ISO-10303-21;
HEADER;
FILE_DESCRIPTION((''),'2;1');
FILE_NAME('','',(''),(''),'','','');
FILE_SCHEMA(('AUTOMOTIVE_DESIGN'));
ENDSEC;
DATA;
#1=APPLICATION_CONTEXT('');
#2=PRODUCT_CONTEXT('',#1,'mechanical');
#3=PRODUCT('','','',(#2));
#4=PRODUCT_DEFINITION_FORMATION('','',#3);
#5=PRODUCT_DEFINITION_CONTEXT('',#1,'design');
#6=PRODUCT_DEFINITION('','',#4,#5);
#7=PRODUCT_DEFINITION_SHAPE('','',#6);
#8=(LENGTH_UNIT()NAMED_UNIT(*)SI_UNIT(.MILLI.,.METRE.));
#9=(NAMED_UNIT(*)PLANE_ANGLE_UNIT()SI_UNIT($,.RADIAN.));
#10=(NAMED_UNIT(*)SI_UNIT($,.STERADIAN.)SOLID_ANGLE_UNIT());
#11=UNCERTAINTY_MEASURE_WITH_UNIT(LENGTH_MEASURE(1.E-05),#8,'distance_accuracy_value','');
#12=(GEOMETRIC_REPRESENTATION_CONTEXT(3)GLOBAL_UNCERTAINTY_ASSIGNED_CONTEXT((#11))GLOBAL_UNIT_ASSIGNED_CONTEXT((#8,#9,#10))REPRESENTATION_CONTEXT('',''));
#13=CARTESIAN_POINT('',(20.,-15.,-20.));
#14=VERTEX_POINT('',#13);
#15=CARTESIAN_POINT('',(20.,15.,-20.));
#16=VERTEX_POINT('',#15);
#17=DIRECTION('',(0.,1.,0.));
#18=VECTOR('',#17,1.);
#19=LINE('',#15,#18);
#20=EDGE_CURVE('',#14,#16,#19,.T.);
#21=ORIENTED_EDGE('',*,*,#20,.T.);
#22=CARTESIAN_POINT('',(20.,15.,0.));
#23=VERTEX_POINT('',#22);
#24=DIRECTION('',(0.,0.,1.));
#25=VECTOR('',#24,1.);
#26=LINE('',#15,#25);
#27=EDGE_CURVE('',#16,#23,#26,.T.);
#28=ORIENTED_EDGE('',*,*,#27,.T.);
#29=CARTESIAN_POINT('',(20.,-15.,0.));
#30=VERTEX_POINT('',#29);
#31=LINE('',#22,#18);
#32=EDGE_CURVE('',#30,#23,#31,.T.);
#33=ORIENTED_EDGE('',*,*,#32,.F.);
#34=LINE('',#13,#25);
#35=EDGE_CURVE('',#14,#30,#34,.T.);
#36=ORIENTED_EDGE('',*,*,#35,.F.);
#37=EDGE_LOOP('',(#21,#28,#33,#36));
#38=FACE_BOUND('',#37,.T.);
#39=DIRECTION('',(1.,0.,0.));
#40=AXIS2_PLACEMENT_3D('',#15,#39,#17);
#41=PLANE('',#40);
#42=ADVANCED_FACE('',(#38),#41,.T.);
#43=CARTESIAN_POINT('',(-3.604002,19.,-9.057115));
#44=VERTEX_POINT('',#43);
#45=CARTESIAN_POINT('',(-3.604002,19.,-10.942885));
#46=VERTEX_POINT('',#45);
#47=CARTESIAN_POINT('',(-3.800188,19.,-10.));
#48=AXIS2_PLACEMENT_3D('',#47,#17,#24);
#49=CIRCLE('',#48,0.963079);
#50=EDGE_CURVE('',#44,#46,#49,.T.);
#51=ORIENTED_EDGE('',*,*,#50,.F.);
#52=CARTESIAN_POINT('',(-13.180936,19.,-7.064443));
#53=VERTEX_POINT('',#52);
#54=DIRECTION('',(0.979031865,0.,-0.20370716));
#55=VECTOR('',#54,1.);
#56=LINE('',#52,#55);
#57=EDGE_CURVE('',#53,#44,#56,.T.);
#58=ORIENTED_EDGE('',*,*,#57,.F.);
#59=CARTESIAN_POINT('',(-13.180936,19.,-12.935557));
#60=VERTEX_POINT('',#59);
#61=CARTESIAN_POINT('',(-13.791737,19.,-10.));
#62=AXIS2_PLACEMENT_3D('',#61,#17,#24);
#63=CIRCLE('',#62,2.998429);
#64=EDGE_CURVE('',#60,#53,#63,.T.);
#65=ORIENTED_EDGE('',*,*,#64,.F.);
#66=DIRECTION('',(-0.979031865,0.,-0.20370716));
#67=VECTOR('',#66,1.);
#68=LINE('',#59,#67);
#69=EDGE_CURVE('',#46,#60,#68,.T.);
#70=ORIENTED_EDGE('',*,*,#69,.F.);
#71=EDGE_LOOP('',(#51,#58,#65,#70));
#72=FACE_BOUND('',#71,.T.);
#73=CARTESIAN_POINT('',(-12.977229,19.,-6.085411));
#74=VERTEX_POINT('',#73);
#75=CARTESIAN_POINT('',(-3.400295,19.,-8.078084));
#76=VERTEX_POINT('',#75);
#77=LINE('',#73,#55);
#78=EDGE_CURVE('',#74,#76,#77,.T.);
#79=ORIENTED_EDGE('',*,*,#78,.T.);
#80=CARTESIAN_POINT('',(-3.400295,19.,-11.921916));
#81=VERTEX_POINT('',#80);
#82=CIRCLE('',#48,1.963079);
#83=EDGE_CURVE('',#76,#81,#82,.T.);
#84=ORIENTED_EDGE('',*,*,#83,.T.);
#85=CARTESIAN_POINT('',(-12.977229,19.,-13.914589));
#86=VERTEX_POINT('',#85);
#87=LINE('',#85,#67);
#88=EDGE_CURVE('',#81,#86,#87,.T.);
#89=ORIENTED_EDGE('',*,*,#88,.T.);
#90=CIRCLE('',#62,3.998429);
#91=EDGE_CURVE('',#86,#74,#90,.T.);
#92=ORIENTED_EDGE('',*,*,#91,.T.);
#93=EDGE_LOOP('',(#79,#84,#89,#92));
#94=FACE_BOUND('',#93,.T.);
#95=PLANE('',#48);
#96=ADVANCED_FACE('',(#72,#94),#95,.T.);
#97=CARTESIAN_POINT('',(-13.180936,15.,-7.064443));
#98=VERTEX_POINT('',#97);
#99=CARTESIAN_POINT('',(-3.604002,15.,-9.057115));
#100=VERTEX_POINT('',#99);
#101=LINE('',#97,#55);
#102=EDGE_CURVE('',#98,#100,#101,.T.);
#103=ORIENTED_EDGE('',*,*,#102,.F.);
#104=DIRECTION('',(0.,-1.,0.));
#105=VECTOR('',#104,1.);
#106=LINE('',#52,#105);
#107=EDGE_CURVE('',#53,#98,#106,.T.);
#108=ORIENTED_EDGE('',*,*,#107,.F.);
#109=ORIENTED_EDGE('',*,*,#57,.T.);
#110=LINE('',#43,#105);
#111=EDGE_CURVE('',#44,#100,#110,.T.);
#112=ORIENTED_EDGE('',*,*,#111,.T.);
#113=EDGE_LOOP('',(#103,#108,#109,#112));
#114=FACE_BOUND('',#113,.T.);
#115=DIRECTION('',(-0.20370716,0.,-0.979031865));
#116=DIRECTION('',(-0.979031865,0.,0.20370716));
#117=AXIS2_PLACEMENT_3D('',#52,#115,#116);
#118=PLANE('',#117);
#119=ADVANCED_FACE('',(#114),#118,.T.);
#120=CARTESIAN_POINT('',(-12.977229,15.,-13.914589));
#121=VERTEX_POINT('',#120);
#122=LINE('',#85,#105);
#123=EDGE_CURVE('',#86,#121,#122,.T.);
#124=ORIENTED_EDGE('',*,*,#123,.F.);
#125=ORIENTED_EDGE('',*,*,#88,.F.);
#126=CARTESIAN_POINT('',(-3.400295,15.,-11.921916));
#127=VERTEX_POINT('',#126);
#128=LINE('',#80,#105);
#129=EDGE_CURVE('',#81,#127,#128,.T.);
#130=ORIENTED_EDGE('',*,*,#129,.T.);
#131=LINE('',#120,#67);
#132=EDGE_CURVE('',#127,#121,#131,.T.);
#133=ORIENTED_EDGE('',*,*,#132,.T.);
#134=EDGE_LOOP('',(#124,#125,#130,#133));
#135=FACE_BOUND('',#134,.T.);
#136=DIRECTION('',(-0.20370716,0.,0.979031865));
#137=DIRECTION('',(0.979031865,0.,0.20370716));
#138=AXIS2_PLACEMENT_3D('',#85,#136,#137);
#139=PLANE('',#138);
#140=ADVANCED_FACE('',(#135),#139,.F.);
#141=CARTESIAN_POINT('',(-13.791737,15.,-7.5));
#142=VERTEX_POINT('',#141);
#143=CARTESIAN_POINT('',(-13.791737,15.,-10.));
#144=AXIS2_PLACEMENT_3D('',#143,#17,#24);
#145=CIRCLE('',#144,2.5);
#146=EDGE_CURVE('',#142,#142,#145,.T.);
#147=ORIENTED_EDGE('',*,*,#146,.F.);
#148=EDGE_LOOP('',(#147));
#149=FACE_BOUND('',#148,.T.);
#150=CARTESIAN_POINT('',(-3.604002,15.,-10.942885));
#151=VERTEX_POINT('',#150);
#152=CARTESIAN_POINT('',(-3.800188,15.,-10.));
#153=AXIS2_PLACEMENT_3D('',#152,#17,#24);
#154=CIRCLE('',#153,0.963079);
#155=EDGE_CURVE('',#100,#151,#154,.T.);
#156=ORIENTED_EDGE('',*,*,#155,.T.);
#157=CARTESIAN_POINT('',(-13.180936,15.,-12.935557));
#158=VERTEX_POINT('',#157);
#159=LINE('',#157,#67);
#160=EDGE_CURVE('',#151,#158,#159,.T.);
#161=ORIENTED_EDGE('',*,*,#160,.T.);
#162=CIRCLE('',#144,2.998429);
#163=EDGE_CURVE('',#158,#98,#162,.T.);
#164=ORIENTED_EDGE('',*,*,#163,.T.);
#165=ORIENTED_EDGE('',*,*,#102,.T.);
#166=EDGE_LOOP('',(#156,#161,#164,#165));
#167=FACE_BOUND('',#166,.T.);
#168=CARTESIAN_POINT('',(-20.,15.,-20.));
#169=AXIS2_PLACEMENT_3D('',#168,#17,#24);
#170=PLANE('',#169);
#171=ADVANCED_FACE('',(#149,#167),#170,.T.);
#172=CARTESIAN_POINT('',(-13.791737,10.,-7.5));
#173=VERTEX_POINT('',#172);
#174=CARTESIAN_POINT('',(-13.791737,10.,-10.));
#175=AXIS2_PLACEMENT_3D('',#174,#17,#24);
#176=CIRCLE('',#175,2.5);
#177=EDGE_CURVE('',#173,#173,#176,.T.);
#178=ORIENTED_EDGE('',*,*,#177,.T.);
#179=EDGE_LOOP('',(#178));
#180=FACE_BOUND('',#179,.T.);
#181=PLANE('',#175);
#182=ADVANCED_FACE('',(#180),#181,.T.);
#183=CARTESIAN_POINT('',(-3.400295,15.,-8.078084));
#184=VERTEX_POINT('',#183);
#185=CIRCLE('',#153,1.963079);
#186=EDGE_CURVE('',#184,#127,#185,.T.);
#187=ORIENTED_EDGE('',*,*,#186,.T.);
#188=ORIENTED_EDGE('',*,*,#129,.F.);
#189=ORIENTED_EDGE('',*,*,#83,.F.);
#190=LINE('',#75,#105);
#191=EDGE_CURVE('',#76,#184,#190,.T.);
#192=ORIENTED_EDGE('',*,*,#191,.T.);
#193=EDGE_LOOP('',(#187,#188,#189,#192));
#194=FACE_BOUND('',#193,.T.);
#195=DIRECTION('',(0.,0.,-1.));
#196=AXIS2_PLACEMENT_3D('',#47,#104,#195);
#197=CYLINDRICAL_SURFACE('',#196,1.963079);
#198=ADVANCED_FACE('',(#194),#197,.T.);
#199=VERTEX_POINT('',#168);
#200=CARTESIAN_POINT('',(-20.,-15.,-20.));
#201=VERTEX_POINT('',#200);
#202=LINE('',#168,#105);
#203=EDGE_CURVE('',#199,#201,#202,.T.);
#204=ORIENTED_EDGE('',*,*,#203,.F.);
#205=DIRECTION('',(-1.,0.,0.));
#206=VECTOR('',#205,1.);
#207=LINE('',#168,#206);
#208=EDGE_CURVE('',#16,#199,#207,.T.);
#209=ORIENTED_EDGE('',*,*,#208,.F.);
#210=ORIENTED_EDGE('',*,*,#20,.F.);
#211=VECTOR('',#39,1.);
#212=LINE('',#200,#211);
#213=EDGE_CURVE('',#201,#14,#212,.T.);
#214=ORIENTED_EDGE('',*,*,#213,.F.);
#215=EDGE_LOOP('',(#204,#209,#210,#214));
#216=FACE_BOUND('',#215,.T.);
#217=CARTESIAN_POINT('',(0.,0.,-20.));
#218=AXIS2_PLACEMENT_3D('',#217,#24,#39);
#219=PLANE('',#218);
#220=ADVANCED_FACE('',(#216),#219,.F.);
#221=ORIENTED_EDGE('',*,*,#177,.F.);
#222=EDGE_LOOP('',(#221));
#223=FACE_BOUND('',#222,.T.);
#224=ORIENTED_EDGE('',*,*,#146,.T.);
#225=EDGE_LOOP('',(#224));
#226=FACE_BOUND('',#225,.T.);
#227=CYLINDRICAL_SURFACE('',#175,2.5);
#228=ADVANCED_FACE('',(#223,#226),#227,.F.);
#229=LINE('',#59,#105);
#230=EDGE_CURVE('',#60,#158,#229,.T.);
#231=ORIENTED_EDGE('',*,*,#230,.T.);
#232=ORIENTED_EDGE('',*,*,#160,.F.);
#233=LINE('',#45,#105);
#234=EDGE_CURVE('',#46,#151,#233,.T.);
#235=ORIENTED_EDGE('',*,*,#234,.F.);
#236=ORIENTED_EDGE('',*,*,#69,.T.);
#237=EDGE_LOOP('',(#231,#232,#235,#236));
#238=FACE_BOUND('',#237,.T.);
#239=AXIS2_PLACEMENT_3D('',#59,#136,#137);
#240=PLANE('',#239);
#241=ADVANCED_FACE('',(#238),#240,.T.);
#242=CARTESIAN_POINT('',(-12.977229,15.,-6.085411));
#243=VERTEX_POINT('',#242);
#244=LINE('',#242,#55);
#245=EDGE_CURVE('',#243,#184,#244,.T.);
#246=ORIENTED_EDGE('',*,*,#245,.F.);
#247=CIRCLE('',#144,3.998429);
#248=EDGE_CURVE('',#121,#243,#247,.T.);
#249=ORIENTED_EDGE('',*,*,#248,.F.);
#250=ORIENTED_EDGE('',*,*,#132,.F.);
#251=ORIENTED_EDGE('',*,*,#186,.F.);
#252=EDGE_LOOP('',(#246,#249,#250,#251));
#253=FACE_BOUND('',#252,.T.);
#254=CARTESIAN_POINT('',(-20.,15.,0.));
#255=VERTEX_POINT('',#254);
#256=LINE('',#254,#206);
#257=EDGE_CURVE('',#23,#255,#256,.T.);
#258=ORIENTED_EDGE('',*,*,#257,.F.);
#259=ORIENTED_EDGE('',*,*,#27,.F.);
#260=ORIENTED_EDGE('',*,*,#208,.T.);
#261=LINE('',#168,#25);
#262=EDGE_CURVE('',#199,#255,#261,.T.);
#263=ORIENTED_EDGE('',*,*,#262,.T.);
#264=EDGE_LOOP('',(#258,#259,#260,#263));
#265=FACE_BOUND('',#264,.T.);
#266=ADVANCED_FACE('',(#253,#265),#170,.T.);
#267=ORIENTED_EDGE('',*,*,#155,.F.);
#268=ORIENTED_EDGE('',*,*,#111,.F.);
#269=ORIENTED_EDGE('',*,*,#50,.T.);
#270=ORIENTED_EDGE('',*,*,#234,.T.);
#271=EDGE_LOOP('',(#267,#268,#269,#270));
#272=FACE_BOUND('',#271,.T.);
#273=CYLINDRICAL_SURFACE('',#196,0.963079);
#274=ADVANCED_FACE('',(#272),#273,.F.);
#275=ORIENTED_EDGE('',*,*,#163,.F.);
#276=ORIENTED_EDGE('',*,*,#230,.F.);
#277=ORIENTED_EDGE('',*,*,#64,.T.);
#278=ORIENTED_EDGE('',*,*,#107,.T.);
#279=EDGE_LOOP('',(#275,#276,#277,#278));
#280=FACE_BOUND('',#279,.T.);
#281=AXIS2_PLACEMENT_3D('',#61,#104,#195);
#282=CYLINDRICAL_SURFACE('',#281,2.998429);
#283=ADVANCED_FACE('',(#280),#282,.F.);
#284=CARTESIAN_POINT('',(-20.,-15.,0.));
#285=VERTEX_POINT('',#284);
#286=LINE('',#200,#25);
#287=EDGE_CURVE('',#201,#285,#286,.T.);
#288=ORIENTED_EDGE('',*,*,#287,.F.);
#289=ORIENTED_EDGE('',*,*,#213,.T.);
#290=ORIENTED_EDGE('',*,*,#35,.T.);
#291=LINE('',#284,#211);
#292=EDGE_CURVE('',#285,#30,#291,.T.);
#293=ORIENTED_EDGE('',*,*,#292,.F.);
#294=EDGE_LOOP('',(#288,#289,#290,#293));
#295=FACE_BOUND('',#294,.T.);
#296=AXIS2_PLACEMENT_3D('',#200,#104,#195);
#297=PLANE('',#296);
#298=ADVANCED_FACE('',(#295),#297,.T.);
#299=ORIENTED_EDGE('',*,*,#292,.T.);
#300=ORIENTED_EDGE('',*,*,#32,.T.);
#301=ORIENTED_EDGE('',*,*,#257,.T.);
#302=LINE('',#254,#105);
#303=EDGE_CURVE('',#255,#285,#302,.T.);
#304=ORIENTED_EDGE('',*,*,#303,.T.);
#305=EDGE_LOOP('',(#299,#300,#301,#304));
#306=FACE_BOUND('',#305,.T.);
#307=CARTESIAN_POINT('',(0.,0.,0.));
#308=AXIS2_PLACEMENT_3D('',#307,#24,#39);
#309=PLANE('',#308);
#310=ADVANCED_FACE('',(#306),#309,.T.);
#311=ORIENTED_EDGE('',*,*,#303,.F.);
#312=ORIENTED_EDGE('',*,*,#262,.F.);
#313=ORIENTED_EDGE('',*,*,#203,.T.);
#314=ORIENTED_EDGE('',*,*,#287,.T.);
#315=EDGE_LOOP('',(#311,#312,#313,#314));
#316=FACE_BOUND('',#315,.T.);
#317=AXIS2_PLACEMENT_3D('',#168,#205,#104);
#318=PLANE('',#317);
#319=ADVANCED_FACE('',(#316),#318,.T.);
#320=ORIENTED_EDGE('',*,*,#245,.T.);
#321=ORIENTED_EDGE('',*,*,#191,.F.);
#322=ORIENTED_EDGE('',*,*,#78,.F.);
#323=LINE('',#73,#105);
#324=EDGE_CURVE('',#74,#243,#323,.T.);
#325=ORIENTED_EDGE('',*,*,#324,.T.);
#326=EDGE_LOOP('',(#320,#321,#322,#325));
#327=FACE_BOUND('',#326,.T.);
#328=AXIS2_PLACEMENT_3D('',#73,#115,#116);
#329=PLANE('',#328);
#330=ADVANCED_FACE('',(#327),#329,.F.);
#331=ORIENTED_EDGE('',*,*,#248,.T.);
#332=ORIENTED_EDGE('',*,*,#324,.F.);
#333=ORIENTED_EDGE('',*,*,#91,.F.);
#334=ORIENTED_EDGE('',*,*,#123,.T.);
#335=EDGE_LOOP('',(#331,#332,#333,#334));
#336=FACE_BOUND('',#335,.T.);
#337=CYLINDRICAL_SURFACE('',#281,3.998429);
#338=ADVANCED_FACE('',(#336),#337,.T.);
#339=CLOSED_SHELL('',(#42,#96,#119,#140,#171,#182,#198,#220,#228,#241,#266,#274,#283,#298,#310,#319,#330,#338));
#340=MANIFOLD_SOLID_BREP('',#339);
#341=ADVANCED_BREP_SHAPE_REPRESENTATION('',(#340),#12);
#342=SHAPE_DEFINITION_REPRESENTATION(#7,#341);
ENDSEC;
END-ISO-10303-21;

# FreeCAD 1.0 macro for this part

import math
import FreeCAD as App
import Part
import Sketcher

doc = App.newDocument("Part")
params = doc.addObject("Spreadsheet::Sheet", "Params")
for row, (alias, value) in enumerate([
    ("sketch1_width", "40 mm"),
    ("sketch1_height", "30 mm"),
    ("pad1_length", "20 mm"),
    ("pad2_length", "4 mm"),
    ("sketch3_diameter", "5 mm"),
    ("pocket1_length", "5 mm"),
], start=1):
    params.set(f"A{row}", alias)
    params.set(f"B{row}", "=" + value)
    params.setAlias(f"B{row}", alias)

body = doc.addObject("PartDesign::Body", "Body")

# Sketch on XY plane
sketch1 = body.newObject("Sketcher::SketchObject", "Sketch")
sketch1.AttachmentSupport = (doc.getObject("XY_Plane"), [""])
sketch1.MapMode = "FlatFace"
sketch1.addGeometry(Part.LineSegment(App.Vector(-20, 15, 0), App.Vector(-20, -15, 0)), False)
sketch1.addGeometry(Part.LineSegment(App.Vector(-20, -15, 0), App.Vector(20, -15, 0)), False)
sketch1.addGeometry(Part.LineSegment(App.Vector(20, -15, 0), App.Vector(20, 15, 0)), False)
sketch1.addGeometry(Part.LineSegment(App.Vector(20, 15, 0), App.Vector(-20, 15, 0)), False)
sketch1.addConstraint(Sketcher.Constraint("Coincident", 0, 2, 1, 1))
sketch1.addConstraint(Sketcher.Constraint("Coincident", 1, 2, 2, 1))
sketch1.addConstraint(Sketcher.Constraint("Coincident", 2, 2, 3, 1))
sketch1.addConstraint(Sketcher.Constraint("Coincident", 3, 2, 0, 1))
sketch1.addConstraint(Sketcher.Constraint("Vertical", 0))
sketch1.addConstraint(Sketcher.Constraint("Horizontal", 1))
sketch1.addConstraint(Sketcher.Constraint("Vertical", 2))
sketch1.addConstraint(Sketcher.Constraint("Horizontal", 3))
sketch1.addConstraint(Sketcher.Constraint("Symmetric", 0, 2, 2, 2, -1, 1))
sketch1.addConstraint(Sketcher.Constraint("DistanceX", 1, 1, 1, 2, 40.0))
sketch1.addConstraint(Sketcher.Constraint("DistanceY", 0, 2, 0, 1, 30.0))
sketch1.setExpression("Constraints[9]", "Params.sketch1_width")
sketch1.setExpression("Constraints[10]", "Params.sketch1_height")
pad1 = body.newObject("PartDesign::Pad", "Pad")
pad1.Profile = sketch1
pad1.setExpression("Length", "Params.pad1_length")
pad1.Reversed = True

# Sketch on XZ plane
sketch2 = body.newObject("Sketcher::SketchObject", "Sketch001")
sketch2.AttachmentSupport = (doc.getObject("XZ_Plane"), [""])
sketch2.MapMode = "FlatFace"
sketch2.AttachmentOffset = App.Placement(App.Vector(0, 0, -15), App.Rotation())
sketch2.addGeometry(Part.LineSegment(App.Vector(-3.400295, -11.921916, 0), App.Vector(-12.977229, -13.914589, 0)), False)
sketch2.addGeometry(Part.ArcOfCircle(Part.Circle(App.Vector(-13.791737, -10, 0), App.Vector(0, 0, 1), 3.998429), math.radians(78.246172), math.radians(281.753828)), False)
sketch2.addGeometry(Part.LineSegment(App.Vector(-12.977229, -6.085411, 0), App.Vector(-3.400295, -8.078084, 0)), False)
sketch2.addGeometry(Part.ArcOfCircle(Part.Circle(App.Vector(-3.800188, -10, 0), App.Vector(0, 0, 1), 1.963079), math.radians(-78.246172), math.radians(78.246172)), False)
sketch2.addGeometry(Part.LineSegment(App.Vector(-13.180936, -12.935557, 0), App.Vector(-3.604002, -10.942885, 0)), False)
sketch2.addGeometry(Part.ArcOfCircle(Part.Circle(App.Vector(-3.800188, -10, 0), App.Vector(0, 0, 1), 0.963079), math.radians(-78.246172), math.radians(78.246172)), False)
sketch2.addGeometry(Part.LineSegment(App.Vector(-3.604002, -9.057115, 0), App.Vector(-13.180936, -7.064443, 0)), False)
sketch2.addGeometry(Part.ArcOfCircle(Part.Circle(App.Vector(-13.791737, -10, 0), App.Vector(0, 0, 1), 2.998429), math.radians(78.246172), math.radians(281.753828)), False)
sketch2.addConstraint(Sketcher.Constraint("Coincident", 0, 2, 1, 2))
sketch2.addConstraint(Sketcher.Constraint("Coincident", 1, 1, 2, 1))
sketch2.addConstraint(Sketcher.Constraint("Coincident", 2, 2, 3, 2))
sketch2.addConstraint(Sketcher.Constraint("Coincident", 3, 1, 0, 1))
sketch2.addConstraint(Sketcher.Constraint("Coincident", 4, 2, 5, 1))
sketch2.addConstraint(Sketcher.Constraint("Coincident", 5, 2, 6, 1))
sketch2.addConstraint(Sketcher.Constraint("Coincident", 6, 2, 7, 1))
sketch2.addConstraint(Sketcher.Constraint("Coincident", 7, 2, 4, 1))
sketch2.addConstraint(Sketcher.Constraint("Coincident", 5, 3, 3, 3))
sketch2.addConstraint(Sketcher.Constraint("Coincident", 7, 3, 1, 3))
sketch2.addConstraint(Sketcher.Constraint("DistanceY", 1, 3, -1, 1, 10.0))
sketch2.addConstraint(Sketcher.Constraint("DistanceY", 3, 3, -1, 1, 10.0))
sketch2.addConstraint(Sketcher.Constraint("Radius", 1, 3.998429))
sketch2.addConstraint(Sketcher.Constraint("Radius", 3, 1.963079))
sketch2.addConstraint(Sketcher.Constraint("Radius", 5, 0.963079))
sketch2.addConstraint(Sketcher.Constraint("Radius", 7, 2.998429))
sketch2.addConstraint(Sketcher.Constraint("DistanceX", 4, 2, -1, 1, 3.604002))
sketch2.addConstraint(Sketcher.Constraint("DistanceX", 5, 2, -1, 1, 3.604002))
sketch2.addConstraint(Sketcher.Constraint("DistanceY", 4, 2, 2, 2, 2.864801))
sketch2.addConstraint(Sketcher.Constraint("DistanceY", 3, 1, 5, 2, 2.864801))
sketch2.addConstraint(Sketcher.Constraint("DistanceX", 1, 3, 6, 2, 0.610801))
sketch2.addConstraint(Sketcher.Constraint("DistanceX", 1, 3, 7, 2, 0.610801))
sketch2.addConstraint(Sketcher.Constraint("DistanceX", 0, 2, -1, 1, 12.977229))
sketch2.addConstraint(Sketcher.Constraint("DistanceY", 0, 2, -1, 1, 13.914589))
sketch2.addConstraint(Sketcher.Constraint("DistanceX", 1, 1, -1, 1, 12.977229))
sketch2.addConstraint(Sketcher.Constraint("DistanceX", 1, 3, 3, 3, 9.99155))
pad2 = body.newObject("PartDesign::Pad", "Pad001")
pad2.Profile = sketch2
pad2.setExpression("Length", "Params.pad2_length")
pad2.Reversed = True

# Sketch on XZ plane
sketch3 = body.newObject("Sketcher::SketchObject", "Sketch002")
sketch3.AttachmentSupport = (doc.getObject("XZ_Plane"), [""])
sketch3.MapMode = "FlatFace"
sketch3.AttachmentOffset = App.Placement(App.Vector(0, 0, -15), App.Rotation())
sketch3.addGeometry(Part.Circle(App.Vector(-13.8, -10, 0), App.Vector(0, 0, 1), 2.5), False)
sketch3.addConstraint(Sketcher.Constraint("Diameter", 0, 5.0))
sketch3.addConstraint(Sketcher.Constraint("DistanceY", 0, 3, -1, 1, 10.0))
sketch3.addConstraint(Sketcher.Constraint("DistanceX", 0, 3, -1, 1, 13.791737))
sketch3.setExpression("Constraints[0]", "Params.sketch3_diameter")
pocket1 = body.newObject("PartDesign::Pocket", "Pocket")
pocket1.Profile = sketch3
pocket1.setExpression("Length", "Params.pocket1_length")
pocket1.Reversed = True

doc.recompute()
